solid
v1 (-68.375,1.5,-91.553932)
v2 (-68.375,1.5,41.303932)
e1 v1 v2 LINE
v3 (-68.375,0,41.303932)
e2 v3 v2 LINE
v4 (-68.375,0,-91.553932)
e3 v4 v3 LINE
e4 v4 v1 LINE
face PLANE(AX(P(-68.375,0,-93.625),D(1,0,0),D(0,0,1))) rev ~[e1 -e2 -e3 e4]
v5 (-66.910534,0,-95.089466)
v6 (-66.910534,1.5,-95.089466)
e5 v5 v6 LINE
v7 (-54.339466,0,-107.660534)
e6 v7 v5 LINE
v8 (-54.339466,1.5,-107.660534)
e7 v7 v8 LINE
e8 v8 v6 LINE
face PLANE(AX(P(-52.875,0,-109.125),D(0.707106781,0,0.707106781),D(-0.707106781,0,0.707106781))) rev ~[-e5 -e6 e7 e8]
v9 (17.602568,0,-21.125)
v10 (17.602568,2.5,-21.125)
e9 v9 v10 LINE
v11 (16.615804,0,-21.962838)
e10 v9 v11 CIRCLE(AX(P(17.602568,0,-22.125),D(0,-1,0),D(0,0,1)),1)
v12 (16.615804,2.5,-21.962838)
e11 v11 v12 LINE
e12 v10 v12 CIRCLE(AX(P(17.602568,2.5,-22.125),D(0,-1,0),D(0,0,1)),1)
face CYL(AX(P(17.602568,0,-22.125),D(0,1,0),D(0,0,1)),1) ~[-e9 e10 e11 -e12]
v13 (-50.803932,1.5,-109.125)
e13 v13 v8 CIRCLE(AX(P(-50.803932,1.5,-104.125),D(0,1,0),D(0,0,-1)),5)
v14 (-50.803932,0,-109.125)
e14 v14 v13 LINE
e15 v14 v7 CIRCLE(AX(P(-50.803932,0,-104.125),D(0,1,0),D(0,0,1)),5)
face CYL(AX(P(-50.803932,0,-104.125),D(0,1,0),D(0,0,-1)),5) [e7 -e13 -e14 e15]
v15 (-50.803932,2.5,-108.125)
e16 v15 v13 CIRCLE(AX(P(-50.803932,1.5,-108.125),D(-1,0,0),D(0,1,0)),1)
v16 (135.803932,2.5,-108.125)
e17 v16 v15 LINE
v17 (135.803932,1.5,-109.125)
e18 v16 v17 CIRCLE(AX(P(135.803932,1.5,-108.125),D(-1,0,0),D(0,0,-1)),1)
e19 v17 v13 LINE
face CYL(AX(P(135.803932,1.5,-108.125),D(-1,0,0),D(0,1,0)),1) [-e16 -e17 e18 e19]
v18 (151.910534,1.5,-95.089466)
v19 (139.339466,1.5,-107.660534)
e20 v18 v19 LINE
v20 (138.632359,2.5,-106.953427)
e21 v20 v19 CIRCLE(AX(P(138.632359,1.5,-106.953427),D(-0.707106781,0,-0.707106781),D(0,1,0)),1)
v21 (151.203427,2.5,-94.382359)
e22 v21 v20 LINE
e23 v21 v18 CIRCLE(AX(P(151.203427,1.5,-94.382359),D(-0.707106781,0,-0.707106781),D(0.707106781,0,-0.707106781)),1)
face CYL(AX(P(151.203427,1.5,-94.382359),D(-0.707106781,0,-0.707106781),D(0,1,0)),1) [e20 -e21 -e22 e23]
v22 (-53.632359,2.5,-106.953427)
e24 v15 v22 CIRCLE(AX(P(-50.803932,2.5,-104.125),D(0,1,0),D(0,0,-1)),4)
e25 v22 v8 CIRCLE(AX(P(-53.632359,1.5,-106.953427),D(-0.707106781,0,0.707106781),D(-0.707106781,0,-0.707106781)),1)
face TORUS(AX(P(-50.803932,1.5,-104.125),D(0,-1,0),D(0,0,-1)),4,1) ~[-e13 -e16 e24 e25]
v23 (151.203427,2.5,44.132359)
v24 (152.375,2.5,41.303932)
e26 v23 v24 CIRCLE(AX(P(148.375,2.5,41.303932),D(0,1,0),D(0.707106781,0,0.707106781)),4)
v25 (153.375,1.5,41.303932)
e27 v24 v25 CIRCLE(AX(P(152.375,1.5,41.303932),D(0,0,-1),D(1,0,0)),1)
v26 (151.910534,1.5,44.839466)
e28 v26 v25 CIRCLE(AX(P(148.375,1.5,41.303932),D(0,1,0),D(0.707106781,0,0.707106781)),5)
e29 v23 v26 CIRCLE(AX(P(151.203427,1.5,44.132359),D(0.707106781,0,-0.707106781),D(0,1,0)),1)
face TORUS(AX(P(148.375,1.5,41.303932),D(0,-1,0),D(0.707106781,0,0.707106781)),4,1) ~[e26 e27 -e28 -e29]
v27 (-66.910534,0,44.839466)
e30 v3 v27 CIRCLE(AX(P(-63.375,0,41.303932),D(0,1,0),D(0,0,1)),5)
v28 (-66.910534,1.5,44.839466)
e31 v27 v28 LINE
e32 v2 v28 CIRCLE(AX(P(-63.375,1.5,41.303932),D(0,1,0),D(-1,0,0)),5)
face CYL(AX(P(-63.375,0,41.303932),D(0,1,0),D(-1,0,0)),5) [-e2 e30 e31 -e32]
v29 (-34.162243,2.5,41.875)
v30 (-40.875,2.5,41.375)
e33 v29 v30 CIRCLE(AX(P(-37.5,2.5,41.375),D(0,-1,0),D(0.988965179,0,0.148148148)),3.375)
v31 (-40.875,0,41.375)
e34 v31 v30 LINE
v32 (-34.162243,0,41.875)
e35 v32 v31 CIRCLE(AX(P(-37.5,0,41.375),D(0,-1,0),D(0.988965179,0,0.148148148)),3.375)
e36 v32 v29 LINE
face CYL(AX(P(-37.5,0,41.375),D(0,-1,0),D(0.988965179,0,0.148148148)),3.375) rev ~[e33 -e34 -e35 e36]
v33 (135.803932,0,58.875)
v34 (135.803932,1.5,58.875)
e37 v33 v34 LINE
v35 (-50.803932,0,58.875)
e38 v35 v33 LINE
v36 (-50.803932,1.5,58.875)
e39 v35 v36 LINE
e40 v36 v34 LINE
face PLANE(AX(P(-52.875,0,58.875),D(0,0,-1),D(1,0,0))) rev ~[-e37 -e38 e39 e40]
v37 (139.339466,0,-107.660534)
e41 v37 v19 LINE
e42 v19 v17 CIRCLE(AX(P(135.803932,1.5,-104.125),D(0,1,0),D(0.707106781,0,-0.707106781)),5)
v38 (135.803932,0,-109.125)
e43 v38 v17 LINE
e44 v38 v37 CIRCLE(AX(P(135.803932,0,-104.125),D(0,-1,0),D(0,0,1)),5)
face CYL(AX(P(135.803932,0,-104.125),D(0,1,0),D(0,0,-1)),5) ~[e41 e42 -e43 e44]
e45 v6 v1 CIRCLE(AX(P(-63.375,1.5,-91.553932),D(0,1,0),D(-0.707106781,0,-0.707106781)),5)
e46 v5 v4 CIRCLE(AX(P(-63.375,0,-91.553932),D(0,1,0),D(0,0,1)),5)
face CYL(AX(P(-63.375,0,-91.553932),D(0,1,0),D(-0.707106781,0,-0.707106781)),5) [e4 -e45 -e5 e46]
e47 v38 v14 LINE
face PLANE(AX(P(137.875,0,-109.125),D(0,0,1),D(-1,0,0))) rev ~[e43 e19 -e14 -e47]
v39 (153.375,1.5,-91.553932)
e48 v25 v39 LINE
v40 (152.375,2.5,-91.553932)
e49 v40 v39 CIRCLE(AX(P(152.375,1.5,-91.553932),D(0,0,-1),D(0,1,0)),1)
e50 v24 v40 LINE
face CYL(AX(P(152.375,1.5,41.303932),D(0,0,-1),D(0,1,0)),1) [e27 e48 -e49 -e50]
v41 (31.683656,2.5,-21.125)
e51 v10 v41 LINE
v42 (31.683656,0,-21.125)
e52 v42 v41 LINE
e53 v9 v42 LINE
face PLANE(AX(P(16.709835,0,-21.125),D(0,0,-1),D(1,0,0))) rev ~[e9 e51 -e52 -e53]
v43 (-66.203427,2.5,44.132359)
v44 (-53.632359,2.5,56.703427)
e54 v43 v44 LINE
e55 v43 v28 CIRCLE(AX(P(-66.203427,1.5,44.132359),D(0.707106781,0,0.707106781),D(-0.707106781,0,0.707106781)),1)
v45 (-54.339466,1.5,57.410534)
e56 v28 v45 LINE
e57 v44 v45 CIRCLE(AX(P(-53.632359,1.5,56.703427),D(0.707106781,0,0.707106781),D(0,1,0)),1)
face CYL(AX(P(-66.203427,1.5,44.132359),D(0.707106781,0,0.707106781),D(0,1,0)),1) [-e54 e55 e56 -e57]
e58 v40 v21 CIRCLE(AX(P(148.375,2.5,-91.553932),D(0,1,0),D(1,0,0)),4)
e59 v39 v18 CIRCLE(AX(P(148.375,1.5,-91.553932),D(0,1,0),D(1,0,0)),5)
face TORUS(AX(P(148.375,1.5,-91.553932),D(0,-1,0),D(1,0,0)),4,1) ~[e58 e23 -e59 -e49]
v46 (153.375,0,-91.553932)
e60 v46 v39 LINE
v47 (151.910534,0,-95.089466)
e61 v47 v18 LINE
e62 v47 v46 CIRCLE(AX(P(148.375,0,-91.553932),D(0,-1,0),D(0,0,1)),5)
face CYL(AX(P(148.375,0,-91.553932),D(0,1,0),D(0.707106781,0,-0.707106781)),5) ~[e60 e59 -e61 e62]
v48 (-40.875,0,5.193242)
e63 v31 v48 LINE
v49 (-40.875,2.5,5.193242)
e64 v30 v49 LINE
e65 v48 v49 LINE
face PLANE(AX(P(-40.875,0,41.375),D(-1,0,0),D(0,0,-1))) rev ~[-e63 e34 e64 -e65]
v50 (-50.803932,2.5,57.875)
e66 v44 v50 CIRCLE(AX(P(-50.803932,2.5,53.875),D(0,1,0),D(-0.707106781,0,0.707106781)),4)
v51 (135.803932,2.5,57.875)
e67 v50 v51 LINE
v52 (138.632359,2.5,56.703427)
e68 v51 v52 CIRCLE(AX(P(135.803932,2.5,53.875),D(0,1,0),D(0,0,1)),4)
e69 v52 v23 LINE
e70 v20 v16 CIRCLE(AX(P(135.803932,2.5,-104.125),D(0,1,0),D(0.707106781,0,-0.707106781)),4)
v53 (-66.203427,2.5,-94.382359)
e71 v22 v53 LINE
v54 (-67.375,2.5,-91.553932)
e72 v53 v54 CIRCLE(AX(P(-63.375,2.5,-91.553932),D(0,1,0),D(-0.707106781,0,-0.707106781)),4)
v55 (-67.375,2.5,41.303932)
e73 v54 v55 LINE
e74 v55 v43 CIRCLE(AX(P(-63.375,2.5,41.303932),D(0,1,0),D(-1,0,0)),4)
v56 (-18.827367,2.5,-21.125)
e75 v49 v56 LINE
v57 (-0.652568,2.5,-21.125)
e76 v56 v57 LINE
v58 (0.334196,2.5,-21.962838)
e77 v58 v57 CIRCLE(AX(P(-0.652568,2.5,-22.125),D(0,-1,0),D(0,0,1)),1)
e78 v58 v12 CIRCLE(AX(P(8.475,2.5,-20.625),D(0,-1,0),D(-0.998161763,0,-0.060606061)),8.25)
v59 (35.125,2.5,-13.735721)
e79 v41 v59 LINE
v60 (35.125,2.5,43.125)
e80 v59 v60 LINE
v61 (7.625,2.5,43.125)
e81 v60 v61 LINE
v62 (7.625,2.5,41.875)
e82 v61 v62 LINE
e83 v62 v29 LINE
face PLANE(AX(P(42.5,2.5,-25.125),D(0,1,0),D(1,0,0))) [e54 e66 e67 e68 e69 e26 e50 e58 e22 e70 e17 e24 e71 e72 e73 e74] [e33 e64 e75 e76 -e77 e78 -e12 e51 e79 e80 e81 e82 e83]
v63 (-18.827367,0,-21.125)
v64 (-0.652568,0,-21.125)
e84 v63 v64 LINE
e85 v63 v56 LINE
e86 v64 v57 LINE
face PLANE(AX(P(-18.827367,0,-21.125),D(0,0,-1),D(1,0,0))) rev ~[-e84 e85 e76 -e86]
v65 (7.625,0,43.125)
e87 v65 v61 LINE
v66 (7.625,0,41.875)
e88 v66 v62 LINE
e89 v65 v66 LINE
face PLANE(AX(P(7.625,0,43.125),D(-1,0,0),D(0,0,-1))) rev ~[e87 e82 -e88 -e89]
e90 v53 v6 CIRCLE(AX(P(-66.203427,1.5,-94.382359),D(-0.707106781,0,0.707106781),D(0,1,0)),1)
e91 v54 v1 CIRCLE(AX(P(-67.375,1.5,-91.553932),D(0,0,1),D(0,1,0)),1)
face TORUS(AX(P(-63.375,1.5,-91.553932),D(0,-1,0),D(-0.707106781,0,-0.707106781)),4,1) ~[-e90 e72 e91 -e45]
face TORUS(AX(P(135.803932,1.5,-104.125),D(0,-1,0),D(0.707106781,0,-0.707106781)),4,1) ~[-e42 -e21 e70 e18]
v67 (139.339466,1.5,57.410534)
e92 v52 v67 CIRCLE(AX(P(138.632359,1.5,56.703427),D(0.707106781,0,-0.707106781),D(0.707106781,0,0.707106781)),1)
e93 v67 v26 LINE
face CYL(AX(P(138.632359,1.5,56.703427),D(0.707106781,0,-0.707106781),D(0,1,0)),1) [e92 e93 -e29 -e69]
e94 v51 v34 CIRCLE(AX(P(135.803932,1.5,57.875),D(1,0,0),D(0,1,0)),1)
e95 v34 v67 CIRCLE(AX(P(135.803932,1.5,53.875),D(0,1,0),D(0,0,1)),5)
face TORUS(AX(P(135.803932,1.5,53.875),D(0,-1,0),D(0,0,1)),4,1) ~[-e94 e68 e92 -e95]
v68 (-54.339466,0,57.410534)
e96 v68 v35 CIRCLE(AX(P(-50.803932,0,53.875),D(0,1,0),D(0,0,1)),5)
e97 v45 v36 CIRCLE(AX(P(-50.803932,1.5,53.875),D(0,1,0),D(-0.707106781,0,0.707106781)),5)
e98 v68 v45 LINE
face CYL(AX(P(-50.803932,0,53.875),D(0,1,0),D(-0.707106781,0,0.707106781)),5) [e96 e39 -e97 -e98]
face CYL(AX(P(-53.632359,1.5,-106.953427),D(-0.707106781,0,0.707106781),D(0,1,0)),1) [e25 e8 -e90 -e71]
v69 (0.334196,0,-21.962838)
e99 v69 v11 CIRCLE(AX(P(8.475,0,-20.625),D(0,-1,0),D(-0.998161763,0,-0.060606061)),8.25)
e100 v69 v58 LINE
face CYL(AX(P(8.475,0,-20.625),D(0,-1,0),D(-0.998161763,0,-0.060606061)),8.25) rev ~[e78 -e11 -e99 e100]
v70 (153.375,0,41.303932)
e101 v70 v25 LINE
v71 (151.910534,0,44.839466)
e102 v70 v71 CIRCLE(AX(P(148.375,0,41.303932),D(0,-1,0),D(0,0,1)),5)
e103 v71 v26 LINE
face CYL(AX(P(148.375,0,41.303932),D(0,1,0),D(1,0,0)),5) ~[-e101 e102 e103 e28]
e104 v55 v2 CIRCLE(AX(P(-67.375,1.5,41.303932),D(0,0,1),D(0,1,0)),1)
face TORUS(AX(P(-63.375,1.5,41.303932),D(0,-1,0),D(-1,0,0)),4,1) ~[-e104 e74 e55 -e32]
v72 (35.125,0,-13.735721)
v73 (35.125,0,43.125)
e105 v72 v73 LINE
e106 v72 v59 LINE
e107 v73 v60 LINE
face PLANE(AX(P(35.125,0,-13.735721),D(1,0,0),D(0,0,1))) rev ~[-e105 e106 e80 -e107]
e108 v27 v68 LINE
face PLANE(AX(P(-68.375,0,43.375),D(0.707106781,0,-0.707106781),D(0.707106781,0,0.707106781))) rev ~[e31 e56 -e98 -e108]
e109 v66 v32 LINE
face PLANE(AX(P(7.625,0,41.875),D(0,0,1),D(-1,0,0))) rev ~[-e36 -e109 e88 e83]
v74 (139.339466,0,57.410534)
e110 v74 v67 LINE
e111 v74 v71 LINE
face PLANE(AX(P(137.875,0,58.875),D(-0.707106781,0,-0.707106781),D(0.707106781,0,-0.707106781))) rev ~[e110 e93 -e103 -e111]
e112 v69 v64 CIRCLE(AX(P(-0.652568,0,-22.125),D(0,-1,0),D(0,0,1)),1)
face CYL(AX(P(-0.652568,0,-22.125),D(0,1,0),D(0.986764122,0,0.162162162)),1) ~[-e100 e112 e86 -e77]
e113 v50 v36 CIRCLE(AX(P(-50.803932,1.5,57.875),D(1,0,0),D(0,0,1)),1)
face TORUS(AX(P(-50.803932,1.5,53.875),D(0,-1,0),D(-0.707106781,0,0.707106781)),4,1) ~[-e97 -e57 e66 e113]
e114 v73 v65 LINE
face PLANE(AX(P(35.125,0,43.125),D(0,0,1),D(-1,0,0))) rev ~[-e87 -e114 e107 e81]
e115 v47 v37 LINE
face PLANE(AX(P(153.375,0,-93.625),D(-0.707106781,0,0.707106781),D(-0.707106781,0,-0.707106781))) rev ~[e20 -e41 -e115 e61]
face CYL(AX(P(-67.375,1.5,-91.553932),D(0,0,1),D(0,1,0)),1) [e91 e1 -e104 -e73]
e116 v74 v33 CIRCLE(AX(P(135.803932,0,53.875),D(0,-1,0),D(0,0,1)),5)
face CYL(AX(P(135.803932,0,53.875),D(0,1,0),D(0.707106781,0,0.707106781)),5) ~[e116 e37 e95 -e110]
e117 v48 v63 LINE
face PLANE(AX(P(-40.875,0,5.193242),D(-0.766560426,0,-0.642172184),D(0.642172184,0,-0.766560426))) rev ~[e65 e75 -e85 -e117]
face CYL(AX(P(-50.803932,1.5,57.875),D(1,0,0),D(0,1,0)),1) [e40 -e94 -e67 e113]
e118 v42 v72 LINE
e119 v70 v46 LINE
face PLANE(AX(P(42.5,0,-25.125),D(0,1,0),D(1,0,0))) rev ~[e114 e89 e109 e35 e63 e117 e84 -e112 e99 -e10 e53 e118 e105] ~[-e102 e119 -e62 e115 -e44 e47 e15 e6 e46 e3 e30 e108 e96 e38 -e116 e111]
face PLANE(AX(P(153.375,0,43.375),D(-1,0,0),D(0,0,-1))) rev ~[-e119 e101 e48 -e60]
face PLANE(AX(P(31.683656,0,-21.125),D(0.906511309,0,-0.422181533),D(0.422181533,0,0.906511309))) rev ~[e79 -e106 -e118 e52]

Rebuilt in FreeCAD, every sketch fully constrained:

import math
import FreeCAD as App
import Part
import Sketcher
Q = App.Units.Quantity


def edges_at(feature, points):
    """Names of the edges that pass closest to the given points."""
    edges = feature.Shape.Edges
    near = lambda p: min(range(len(edges)), key=lambda i: edges[i].distToShape(Part.Vertex(*p))[0])
    return sorted({f"Edge{near(p) + 1}" for p in points})

doc = App.newDocument("Part")
body = doc.addObject("PartDesign::Body", "Body")

# Sketch on XZ plane
sketch1 = body.newObject("Sketcher::SketchObject", "Sketch")
sketch1.AttachmentSupport = (doc.getObject("XZ_Plane"), [""])
sketch1.MapMode = "FlatFace"
sketch1.addGeometry(Part.LineSegment(App.Vector(137.9, -109.1, 0), App.Vector(-52.9, -109.1, 0)), False)
sketch1.addGeometry(Part.LineSegment(App.Vector(-52.9, -109.1, 0), App.Vector(-68.4, -93.6, 0)), False)
sketch1.addGeometry(Part.LineSegment(App.Vector(-68.4, -93.6, 0), App.Vector(-68.4, 43.4, 0)), False)
sketch1.addGeometry(Part.LineSegment(App.Vector(-68.4, 43.4, 0), App.Vector(-52.9, 58.9, 0)), False)
sketch1.addGeometry(Part.LineSegment(App.Vector(-52.9, 58.9, 0), App.Vector(137.9, 58.9, 0)), False)
sketch1.addGeometry(Part.LineSegment(App.Vector(137.9, 58.9, 0), App.Vector(153.4, 43.4, 0)), False)
sketch1.addGeometry(Part.LineSegment(App.Vector(153.4, 43.4, 0), App.Vector(153.4, -93.6, 0)), False)
sketch1.addGeometry(Part.LineSegment(App.Vector(153.4, -93.6, 0), App.Vector(137.9, -109.1, 0)), False)
sketch1.addGeometry(Part.LineSegment(App.Vector(-40.9, 41.4, 0), App.Vector(-40.9, 5.2, 0)), False)
sketch1.addGeometry(Part.LineSegment(App.Vector(-40.9, 5.2, 0), App.Vector(-18.8, -21.1, 0)), False)
sketch1.addGeometry(Part.LineSegment(App.Vector(-18.8, -21.1, 0), App.Vector(0.2, -21.1, 0)), False)
sketch1.addGeometry(Part.ArcOfCircle(Part.Circle(App.Vector(8.5, -20.6, 0), App.Vector(0, 0, 1), 8.2), math.radians(-177), math.radians(-3)), False)
sketch1.addGeometry(Part.LineSegment(App.Vector(16.7, -21.1, 0), App.Vector(31.7, -21.1, 0)), False)
sketch1.addGeometry(Part.LineSegment(App.Vector(31.7, -21.1, 0), App.Vector(35.1, -13.7, 0)), False)
sketch1.addGeometry(Part.LineSegment(App.Vector(35.1, -13.7, 0), App.Vector(35.1, 43.1, 0)), False)
sketch1.addGeometry(Part.LineSegment(App.Vector(35.1, 43.1, 0), App.Vector(7.6, 43.1, 0)), False)
sketch1.addGeometry(Part.LineSegment(App.Vector(7.6, 43.1, 0), App.Vector(7.6, 41.9, 0)), False)
sketch1.addGeometry(Part.LineSegment(App.Vector(7.6, 41.9, 0), App.Vector(-34.2, 41.9, 0)), False)
sketch1.addGeometry(Part.ArcOfCircle(Part.Circle(App.Vector(-37.5, 41.4, 0), App.Vector(0, 0, 1), 3.4), math.radians(9), math.radians(180)), False)
sketch1.addConstraint(Sketcher.Constraint("Coincident", 0, 2, 1, 1))
sketch1.addConstraint(Sketcher.Constraint("Coincident", 1, 2, 2, 1))
sketch1.addConstraint(Sketcher.Constraint("Coincident", 2, 2, 3, 1))
sketch1.addConstraint(Sketcher.Constraint("Coincident", 3, 2, 4, 1))
sketch1.addConstraint(Sketcher.Constraint("Coincident", 4, 2, 5, 1))
sketch1.addConstraint(Sketcher.Constraint("Coincident", 5, 2, 6, 1))
sketch1.addConstraint(Sketcher.Constraint("Coincident", 6, 2, 7, 1))
sketch1.addConstraint(Sketcher.Constraint("Coincident", 7, 2, 0, 1))
sketch1.addConstraint(Sketcher.Constraint("Coincident", 8, 2, 9, 1))
sketch1.addConstraint(Sketcher.Constraint("Coincident", 9, 2, 10, 1))
sketch1.addConstraint(Sketcher.Constraint("Coincident", 10, 2, 11, 1))
sketch1.addConstraint(Sketcher.Constraint("Coincident", 11, 2, 12, 1))
sketch1.addConstraint(Sketcher.Constraint("Coincident", 12, 2, 13, 1))
sketch1.addConstraint(Sketcher.Constraint("Coincident", 13, 2, 14, 1))
sketch1.addConstraint(Sketcher.Constraint("Coincident", 14, 2, 15, 1))
sketch1.addConstraint(Sketcher.Constraint("Coincident", 15, 2, 16, 1))
sketch1.addConstraint(Sketcher.Constraint("Coincident", 16, 2, 17, 1))
sketch1.addConstraint(Sketcher.Constraint("Coincident", 17, 2, 18, 1))
sketch1.addConstraint(Sketcher.Constraint("Tangent", 18, 2, 8, 1))
sketch1.addConstraint(Sketcher.Constraint("Horizontal", 0))
sketch1.addConstraint(Sketcher.Constraint("Vertical", 2))
sketch1.addConstraint(Sketcher.Constraint("Horizontal", 4))
sketch1.addConstraint(Sketcher.Constraint("Vertical", 6))
sketch1.addConstraint(Sketcher.Constraint("Vertical", 8))
sketch1.addConstraint(Sketcher.Constraint("Horizontal", 10))
sketch1.addConstraint(Sketcher.Constraint("Horizontal", 12))
sketch1.addConstraint(Sketcher.Constraint("Vertical", 14))
sketch1.addConstraint(Sketcher.Constraint("Horizontal", 15))
sketch1.addConstraint(Sketcher.Constraint("Vertical", 16))
sketch1.addConstraint(Sketcher.Constraint("Horizontal", 17))
sketch1.addConstraint(Sketcher.Constraint("Perpendicular", 1, 3))
sketch1.addConstraint(Sketcher.Constraint("Perpendicular", 3, 5))
sketch1.addConstraint(Sketcher.Constraint("Perpendicular", 5, 7))
sketch1.addConstraint(Sketcher.Constraint("Horizontal", 2, 2, 5, 2))
sketch1.addConstraint(Sketcher.Constraint("Horizontal", 1, 2, 6, 2))
sketch1.addConstraint(Sketcher.Constraint("Horizontal", 10, 2, 11, 2))
sketch1.addConstraint(Sketcher.Constraint("Vertical", 0, 2, 3, 2))
sketch1.addConstraint(Sketcher.Constraint("Vertical", 4, 2, 7, 2))
sketch1.addConstraint(Sketcher.Constraint("DistanceY", 2, 1, 2, 2, Q("137 mm")))
sketch1.addConstraint(Sketcher.Constraint("Radius", 11, Q("8.25 mm")))
sketch1.addConstraint(Sketcher.Constraint("DistanceX", 15, 2, 15, 1, Q("27.5 mm")))
sketch1.addConstraint(Sketcher.Constraint("Radius", 18, Q("3.375 mm")))
sketch1.addConstraint(Sketcher.Constraint("DistanceY", 11, 3, 18, 3, Q("62 mm")))
sketch1.addConstraint(Sketcher.Constraint("DistanceY", 1, 2, 11, 3, Q("73 mm")))
sketch1.addConstraint(Sketcher.Constraint("DistanceY", 0, 2, 3, 2, Q("168 mm")))
sketch1.addConstraint(Sketcher.Constraint("DistanceX", 3, 2, 8, 2, Q("12 mm")))
sketch1.addConstraint(Sketcher.Constraint("DistanceY", 9, 2, 3, 2, Q("80 mm")))
sketch1.addConstraint(Sketcher.Constraint("DistanceY", 17, 2, 3, 2, Q("17 mm")))
sketch1.addConstraint(Sketcher.Constraint("DistanceX", 0, 2, 0, 1, Q("190.75 mm")))
sketch1.addConstraint(Sketcher.Constraint("DistanceY", 16, 2, 16, 1, Q("1.25 mm")))
sketch1.addConstraint(Sketcher.Constraint("DistanceX", 18, 3, -1, 1, Q("37.5 mm")))
sketch1.addConstraint(Sketcher.Constraint("DistanceX", 11, 3, 4, 2, Q("129.4 mm")))
sketch1.addConstraint(Sketcher.Constraint("DistanceX", 8, 2, 15, 2, Q("48.5 mm")))
sketch1.addConstraint(Sketcher.Constraint("DistanceY", 11, 3, -1, 1, Q("20.625 mm")))
sketch1.addConstraint(Sketcher.Constraint("Distance", 9, Q("34.3329 mm")))
sketch1.addConstraint(Sketcher.Constraint("DistanceX", 12, 1, 12, 2, Q("14.973822 mm")))
sketch1.addConstraint(Sketcher.Constraint("DistanceY", 14, 1, 14, 2, Q("56.860721 mm")))
sketch1.addConstraint(Sketcher.Constraint("DistanceX", 9, 2, 11, 2, Q("35.537201 mm")))
pad1 = body.newObject("PartDesign::Pad", "Pad")
pad1.Profile = sketch1
pad1.Length = 2.5
pad1.Reversed = True
doc.recompute()

fillet = body.newObject("PartDesign::Fillet", "Fillet")
fillet.Base = (pad1, edges_at(pad1, [
    (-68.375, 1.25, 43.375),
    (-68.375, 1.25, -93.625),
    (-52.875, 1.25, -109.125),
    (137.875, 1.25, -109.125),
    (153.375, 1.25, -93.625),
    (153.375, 1.25, 43.375),
    (137.875, 1.25, 58.875),
    (-52.875, 1.25, 58.875),
]))
fillet.Radius = 5
doc.recompute()

fillet2 = body.newObject("PartDesign::Fillet", "Fillet001")
fillet2.Base = (fillet, edges_at(fillet, [
    (16.71, 1.25, -21.125),
    (0.24, 1.25, -21.125),
    (-68.375, 2.5, -25.125),
    (-60.625, 2.5, -101.375),
    (-60.625, 2.5, 51.125),
    (42.5, 2.5, 58.875),
    (145.625, 2.5, 51.125),
    (153.375, 2.5, -25.125),
    (145.625, 2.5, -101.375),
    (42.5, 2.5, -109.125),
    (-67.994, 2.5, 43.217),
    (-52.717, 2.5, 58.494),
    (137.717, 2.5, 58.494),
    (152.994, 2.5, 43.217),
    (137.717, 2.5, -108.744),
    (152.994, 2.5, -93.467),
    (-52.717, 2.5, -108.744),
    (-67.994, 2.5, -93.467),
]))
fillet2.Radius = 1

doc.recompute()
